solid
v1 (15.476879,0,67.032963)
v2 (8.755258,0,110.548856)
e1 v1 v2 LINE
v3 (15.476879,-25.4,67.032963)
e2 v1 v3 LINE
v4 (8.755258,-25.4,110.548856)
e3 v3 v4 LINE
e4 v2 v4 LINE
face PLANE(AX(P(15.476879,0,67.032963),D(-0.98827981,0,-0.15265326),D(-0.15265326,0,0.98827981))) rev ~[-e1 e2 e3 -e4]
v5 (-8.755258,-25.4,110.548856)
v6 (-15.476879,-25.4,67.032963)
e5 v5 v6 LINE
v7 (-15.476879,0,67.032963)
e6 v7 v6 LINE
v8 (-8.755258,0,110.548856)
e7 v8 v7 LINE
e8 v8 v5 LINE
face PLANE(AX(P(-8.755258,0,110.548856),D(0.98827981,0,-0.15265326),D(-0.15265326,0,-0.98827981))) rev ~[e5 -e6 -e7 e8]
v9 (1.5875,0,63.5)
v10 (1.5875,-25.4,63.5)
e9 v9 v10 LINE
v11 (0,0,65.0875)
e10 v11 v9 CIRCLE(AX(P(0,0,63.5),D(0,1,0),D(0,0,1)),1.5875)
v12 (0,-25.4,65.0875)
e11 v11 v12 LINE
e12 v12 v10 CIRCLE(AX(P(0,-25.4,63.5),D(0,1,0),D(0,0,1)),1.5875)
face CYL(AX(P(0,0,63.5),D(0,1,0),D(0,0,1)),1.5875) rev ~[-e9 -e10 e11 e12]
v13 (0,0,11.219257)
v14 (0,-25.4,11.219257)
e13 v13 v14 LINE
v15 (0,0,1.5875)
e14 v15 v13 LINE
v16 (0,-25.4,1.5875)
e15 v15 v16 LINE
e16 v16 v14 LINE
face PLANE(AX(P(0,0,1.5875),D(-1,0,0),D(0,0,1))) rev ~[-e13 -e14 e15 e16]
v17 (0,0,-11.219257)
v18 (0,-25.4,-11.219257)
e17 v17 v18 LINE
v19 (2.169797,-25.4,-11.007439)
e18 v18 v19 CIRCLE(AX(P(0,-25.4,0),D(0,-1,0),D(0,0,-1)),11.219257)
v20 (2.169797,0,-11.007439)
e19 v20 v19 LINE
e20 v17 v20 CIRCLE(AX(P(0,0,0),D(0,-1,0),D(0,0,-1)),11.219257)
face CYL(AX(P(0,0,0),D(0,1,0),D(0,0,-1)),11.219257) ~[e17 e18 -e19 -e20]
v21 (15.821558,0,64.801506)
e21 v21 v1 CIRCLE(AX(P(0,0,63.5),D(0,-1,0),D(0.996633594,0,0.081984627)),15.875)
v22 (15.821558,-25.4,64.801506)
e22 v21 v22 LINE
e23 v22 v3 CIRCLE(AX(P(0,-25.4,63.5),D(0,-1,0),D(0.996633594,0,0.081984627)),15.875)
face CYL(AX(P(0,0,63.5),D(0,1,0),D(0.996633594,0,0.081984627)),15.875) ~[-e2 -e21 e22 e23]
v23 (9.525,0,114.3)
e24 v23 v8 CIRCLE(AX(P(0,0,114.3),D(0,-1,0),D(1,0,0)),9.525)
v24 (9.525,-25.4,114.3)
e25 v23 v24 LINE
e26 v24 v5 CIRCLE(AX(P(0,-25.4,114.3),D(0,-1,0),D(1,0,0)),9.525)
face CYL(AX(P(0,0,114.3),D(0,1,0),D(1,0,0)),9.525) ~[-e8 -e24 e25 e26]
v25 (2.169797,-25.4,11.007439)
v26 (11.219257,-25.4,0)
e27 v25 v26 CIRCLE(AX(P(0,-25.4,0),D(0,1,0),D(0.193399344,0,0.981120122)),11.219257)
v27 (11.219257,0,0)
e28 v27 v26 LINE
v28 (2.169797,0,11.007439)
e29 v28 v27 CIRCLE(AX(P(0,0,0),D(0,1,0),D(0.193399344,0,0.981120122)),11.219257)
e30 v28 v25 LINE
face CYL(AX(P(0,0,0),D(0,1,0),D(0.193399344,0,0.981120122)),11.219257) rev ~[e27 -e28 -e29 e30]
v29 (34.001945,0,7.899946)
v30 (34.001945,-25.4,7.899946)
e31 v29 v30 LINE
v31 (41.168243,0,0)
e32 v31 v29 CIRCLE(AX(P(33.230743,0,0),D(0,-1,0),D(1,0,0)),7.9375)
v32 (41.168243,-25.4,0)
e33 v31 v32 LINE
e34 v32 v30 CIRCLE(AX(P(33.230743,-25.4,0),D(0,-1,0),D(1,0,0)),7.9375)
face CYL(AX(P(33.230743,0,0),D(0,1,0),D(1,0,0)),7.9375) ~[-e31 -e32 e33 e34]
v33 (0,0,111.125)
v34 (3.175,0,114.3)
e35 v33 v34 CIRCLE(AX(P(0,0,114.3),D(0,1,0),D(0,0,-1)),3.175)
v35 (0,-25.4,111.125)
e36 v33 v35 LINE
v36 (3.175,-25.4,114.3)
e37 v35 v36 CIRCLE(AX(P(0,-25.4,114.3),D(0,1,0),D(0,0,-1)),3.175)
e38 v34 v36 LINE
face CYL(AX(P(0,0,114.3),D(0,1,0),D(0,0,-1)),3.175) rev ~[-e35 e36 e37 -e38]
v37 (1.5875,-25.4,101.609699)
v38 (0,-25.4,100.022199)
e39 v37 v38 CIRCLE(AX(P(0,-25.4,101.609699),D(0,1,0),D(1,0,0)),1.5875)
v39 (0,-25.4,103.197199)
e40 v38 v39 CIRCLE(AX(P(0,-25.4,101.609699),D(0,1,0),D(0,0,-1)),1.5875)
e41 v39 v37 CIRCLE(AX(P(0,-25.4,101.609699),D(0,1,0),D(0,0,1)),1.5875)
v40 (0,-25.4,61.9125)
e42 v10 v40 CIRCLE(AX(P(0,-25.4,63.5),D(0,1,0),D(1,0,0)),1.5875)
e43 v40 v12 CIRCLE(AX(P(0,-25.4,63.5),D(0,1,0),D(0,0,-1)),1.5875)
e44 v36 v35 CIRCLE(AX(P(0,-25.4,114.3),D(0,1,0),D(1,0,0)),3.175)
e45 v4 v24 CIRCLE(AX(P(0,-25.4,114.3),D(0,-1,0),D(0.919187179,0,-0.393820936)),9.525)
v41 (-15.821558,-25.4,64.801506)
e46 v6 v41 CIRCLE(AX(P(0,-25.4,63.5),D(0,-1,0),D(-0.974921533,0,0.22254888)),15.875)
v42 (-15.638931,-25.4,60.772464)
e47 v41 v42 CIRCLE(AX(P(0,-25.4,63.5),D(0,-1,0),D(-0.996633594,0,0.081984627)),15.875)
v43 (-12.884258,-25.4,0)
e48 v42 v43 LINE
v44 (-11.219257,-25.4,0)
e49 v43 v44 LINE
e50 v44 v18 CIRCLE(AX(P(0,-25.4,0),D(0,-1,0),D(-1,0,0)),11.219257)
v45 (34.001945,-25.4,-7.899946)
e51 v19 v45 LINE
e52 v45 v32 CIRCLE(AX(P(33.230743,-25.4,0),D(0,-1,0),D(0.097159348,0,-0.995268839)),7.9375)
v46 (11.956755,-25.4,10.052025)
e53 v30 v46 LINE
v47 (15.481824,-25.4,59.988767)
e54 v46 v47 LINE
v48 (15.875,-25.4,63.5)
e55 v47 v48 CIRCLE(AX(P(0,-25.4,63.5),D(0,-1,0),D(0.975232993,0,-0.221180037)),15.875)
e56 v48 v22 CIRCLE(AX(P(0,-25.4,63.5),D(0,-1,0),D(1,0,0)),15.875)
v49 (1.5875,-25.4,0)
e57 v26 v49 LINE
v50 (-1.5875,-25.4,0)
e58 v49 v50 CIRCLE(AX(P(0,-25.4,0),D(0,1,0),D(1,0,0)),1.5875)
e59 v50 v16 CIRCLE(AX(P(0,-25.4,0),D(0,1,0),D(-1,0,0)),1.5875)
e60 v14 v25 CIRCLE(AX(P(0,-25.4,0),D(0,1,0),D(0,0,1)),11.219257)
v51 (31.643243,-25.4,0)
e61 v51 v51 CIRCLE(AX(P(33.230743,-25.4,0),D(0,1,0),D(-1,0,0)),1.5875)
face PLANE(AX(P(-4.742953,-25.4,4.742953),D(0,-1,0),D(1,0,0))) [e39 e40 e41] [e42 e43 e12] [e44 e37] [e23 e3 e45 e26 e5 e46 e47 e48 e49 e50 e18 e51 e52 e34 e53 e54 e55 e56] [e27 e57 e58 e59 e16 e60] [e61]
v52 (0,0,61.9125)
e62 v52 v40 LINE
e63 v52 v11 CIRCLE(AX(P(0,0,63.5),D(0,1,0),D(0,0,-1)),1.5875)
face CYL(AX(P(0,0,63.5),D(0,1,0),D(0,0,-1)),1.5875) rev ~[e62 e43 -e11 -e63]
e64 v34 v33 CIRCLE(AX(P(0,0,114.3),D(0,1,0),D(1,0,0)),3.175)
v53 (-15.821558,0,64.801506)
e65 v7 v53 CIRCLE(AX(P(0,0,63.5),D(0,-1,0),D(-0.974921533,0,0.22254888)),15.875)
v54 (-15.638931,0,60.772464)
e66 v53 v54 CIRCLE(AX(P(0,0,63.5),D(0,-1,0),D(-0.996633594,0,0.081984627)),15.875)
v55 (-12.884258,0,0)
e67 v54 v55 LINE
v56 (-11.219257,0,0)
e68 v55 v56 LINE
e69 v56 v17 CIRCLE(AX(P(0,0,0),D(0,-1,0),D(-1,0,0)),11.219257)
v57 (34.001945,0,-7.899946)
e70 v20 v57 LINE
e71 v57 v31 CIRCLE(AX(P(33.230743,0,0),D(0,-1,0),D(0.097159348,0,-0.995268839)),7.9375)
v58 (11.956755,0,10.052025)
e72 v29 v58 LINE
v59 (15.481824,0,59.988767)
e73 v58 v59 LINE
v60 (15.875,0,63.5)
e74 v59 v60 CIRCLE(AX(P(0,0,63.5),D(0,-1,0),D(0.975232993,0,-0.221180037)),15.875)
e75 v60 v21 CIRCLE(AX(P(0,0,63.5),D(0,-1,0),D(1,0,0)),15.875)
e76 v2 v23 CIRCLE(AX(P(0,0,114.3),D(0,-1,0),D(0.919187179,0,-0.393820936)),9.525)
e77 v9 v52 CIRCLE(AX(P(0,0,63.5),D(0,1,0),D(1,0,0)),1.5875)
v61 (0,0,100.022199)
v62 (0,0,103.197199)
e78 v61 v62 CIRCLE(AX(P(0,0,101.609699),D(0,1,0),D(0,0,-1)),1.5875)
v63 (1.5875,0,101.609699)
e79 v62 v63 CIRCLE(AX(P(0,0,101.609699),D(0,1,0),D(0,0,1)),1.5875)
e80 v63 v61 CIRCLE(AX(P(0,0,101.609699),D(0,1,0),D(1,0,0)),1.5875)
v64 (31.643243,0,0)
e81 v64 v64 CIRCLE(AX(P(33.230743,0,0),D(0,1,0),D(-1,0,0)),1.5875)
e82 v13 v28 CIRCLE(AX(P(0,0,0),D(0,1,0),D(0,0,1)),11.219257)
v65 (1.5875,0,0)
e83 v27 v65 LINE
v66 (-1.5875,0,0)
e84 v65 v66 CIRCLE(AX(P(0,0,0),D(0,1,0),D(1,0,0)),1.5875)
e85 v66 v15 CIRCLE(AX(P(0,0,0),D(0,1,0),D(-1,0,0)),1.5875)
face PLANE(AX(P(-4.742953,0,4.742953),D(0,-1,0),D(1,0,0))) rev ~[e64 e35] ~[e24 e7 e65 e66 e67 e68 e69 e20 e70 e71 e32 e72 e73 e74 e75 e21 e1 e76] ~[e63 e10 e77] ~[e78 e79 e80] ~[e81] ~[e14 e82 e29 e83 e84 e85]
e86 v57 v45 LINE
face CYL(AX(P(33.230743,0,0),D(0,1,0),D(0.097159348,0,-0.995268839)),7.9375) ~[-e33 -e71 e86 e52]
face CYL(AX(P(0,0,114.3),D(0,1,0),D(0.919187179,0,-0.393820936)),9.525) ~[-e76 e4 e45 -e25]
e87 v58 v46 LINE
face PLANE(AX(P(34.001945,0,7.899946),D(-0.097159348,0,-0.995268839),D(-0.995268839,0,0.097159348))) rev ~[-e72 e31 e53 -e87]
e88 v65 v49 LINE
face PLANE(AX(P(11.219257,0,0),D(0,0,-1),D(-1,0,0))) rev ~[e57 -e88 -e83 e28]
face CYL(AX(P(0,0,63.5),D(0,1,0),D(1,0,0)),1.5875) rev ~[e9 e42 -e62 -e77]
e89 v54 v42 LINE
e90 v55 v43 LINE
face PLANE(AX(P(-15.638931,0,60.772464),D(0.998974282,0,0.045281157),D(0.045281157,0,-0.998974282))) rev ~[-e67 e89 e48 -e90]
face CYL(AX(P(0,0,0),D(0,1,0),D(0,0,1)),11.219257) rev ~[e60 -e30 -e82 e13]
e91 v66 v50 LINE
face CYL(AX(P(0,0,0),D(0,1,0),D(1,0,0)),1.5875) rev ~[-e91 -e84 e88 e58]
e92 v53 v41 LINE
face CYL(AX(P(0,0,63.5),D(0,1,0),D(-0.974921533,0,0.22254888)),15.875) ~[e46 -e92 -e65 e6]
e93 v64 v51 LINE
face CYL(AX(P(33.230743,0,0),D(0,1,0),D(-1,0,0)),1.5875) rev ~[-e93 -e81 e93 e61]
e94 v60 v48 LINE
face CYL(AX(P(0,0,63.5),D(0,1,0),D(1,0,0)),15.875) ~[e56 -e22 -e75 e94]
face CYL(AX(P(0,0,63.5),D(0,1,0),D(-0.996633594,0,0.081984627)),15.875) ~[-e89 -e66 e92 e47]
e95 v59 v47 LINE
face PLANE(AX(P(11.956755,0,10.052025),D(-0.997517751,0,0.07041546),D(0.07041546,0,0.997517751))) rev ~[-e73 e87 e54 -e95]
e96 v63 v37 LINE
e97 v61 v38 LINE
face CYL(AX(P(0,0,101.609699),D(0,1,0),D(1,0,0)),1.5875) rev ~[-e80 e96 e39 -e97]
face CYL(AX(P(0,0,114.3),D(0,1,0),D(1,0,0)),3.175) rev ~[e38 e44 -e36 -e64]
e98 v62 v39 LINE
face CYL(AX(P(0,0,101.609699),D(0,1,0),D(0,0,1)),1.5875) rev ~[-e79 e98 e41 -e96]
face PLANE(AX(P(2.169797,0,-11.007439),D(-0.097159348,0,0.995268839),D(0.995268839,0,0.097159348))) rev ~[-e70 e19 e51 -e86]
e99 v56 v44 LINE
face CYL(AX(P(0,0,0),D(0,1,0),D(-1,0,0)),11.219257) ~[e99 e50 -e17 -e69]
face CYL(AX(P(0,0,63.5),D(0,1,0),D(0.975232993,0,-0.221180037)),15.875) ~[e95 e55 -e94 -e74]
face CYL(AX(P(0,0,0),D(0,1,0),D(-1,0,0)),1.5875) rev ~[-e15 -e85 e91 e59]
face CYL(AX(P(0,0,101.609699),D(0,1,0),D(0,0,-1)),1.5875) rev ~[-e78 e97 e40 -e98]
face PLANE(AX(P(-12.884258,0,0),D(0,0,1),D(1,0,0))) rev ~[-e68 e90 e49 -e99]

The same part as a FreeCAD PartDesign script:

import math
import FreeCAD as App
import Part
import Sketcher

V = App.Vector
Q = App.Units.Quantity

doc = App.newDocument("Part")
body = doc.addObject("PartDesign::Body", "Body")

sketch1 = body.newObject("Sketcher::SketchObject", "Sketch")
sketch1.AttachmentSupport = (doc.getObject("XZ_Plane"), [""])
sketch1.MapMode = "FlatFace"
sketch1.addGeometry(Part.LineSegment(V(2.2, -11, 0), V(34, -7.9, 0)), False)
sketch1.addGeometry(Part.ArcOfCircle(Part.Circle(V(33.2, 0, 0), V(0, 0, 1), 7.9), math.radians(-84), math.radians(0)), False)
sketch1.addGeometry(Part.ArcOfCircle(Part.Circle(V(33.2, 0, 0), V(0, 0, 1), 7.9), math.radians(0), math.radians(84)), False)
sketch1.addGeometry(Part.LineSegment(V(34, 7.9, 0), V(12, 10.1, 0)), False)
sketch1.addGeometry(Part.LineSegment(V(12, 10.1, 0), V(15.5, 60, 0)), False)
sketch1.addGeometry(Part.ArcOfCircle(Part.Circle(V(0, 63.5, 0), V(0, 0, 1), 15.9), math.radians(-12.78), math.radians(0)), False)
sketch1.addGeometry(Part.ArcOfCircle(Part.Circle(V(0, 63.5, 0), V(0, 0, 1), 15.9), math.radians(0), math.radians(4.7)), False)
sketch1.addGeometry(Part.ArcOfCircle(Part.Circle(V(0, 63.5, 0), V(0, 0, 1), 15.9), math.radians(4.7), math.radians(12.86)), False)
sketch1.addGeometry(Part.LineSegment(V(15.5, 67, 0), V(8.8, 110.5, 0)), False)
sketch1.addGeometry(Part.ArcOfCircle(Part.Circle(V(0, 114.3, 0), V(0, 0, 1), 9.5), math.radians(-23), math.radians(0)), False)
sketch1.addGeometry(Part.ArcOfCircle(Part.Circle(V(0, 114.3, 0), V(0, 0, 1), 9.5), math.radians(0), math.radians(203)), False)
sketch1.addGeometry(Part.LineSegment(V(-8.8, 110.5, 0), V(-15.5, 67, 0)), False)
sketch1.addGeometry(Part.ArcOfCircle(Part.Circle(V(0, 63.5, 0), V(0, 0, 1), 15.9), math.radians(167.14), math.radians(175.3)), False)
sketch1.addGeometry(Part.ArcOfCircle(Part.Circle(V(0, 63.5, 0), V(0, 0, 1), 15.9), math.radians(175.3), math.radians(189.89)), False)
sketch1.addGeometry(Part.LineSegment(V(-15.6, 60.8, 0), V(-12.9, 0, 0)), False)
sketch1.addGeometry(Part.LineSegment(V(-12.9, 0, 0), V(-11.2, 0, 0)), False)
sketch1.addGeometry(Part.ArcOfCircle(Part.Circle(V(0, 0, 0), V(0, 0, 1), 11.2), math.radians(180), math.radians(270)), False)
sketch1.addGeometry(Part.ArcOfCircle(Part.Circle(V(0, 0, 0), V(0, 0, 1), 11.2), math.radians(-90), math.radians(-78.85)), False)
sketch1.addGeometry(Part.ArcOfCircle(Part.Circle(V(0, 0, 0), V(0, 0, 1), 11.2), math.radians(0), math.radians(79)), False)
sketch1.addGeometry(Part.LineSegment(V(11.2, 0, 0), V(1.6, 0, 0)), False)
sketch1.addGeometry(Part.ArcOfCircle(Part.Circle(V(0, 0, 0), V(0, 0, 1), 1.6), math.radians(180), math.radians(360)), False)
sketch1.addGeometry(Part.ArcOfCircle(Part.Circle(V(0, 0, 0), V(0, 0, 1), 1.6), math.radians(90), math.radians(180)), False)
sketch1.addGeometry(Part.LineSegment(V(0, 1.6, 0), V(0, 11.2, 0)), False)
sketch1.addGeometry(Part.ArcOfCircle(Part.Circle(V(0, 0, 0), V(0, 0, 1), 11.2), math.radians(78.85), math.radians(90)), False)
sketch1.addGeometry(Part.Circle(V(33.2, 0, 0), V(0, 0, 1), 1.6), False)
sketch1.addGeometry(Part.ArcOfCircle(Part.Circle(V(0, 63.5, 0), V(0, 0, 1), 1.6), math.radians(90), math.radians(270)), False)
sketch1.addGeometry(Part.ArcOfCircle(Part.Circle(V(0, 63.5, 0), V(0, 0, 1), 1.6), math.radians(0), math.radians(90)), False)
sketch1.addGeometry(Part.ArcOfCircle(Part.Circle(V(0, 63.5, 0), V(0, 0, 1), 1.6), math.radians(-90), math.radians(0)), False)
sketch1.addGeometry(Part.ArcOfCircle(Part.Circle(V(0, 101.6, 0), V(0, 0, 1), 1.6), math.radians(90), math.radians(270)), False)
sketch1.addGeometry(Part.ArcOfCircle(Part.Circle(V(0, 101.6, 0), V(0, 0, 1), 1.6), math.radians(0), math.radians(90)), False)
sketch1.addGeometry(Part.ArcOfCircle(Part.Circle(V(0, 101.6, 0), V(0, 0, 1), 1.6), math.radians(-90), math.radians(0)), False)
sketch1.addGeometry(Part.ArcOfCircle(Part.Circle(V(0, 114.3, 0), V(0, 0, 1), 3.2), math.radians(0), math.radians(270)), False)
sketch1.addGeometry(Part.ArcOfCircle(Part.Circle(V(0, 114.3, 0), V(0, 0, 1), 3.2), math.radians(-90), math.radians(0)), False)
sketch1.addConstraint(Sketcher.Constraint("Tangent", 0, 2, 1, 1))
sketch1.addConstraint(Sketcher.Constraint("Tangent", 1, 2, 2, 1))
sketch1.addConstraint(Sketcher.Constraint("Tangent", 2, 2, 3, 1))
sketch1.addConstraint(Sketcher.Constraint("Coincident", 3, 2, 4, 1))
sketch1.addConstraint(Sketcher.Constraint("Coincident", 4, 2, 5, 1))
sketch1.addConstraint(Sketcher.Constraint("Tangent", 5, 2, 6, 1))
sketch1.addConstraint(Sketcher.Constraint("Tangent", 6, 2, 7, 1))
sketch1.addConstraint(Sketcher.Constraint("Coincident", 7, 2, 8, 1))
sketch1.addConstraint(Sketcher.Constraint("Coincident", 8, 2, 9, 1))
sketch1.addConstraint(Sketcher.Constraint("Tangent", 9, 2, 10, 1))
sketch1.addConstraint(Sketcher.Constraint("Coincident", 10, 2, 11, 1))
sketch1.addConstraint(Sketcher.Constraint("Coincident", 11, 2, 12, 1))
sketch1.addConstraint(Sketcher.Constraint("Tangent", 12, 2, 13, 1))
sketch1.addConstraint(Sketcher.Constraint("Coincident", 13, 2, 14, 1))
sketch1.addConstraint(Sketcher.Constraint("Coincident", 14, 2, 15, 1))
sketch1.addConstraint(Sketcher.Constraint("Coincident", 15, 2, 16, 1))
sketch1.addConstraint(Sketcher.Constraint("Tangent", 16, 2, 17, 1))
sketch1.addConstraint(Sketcher.Constraint("Coincident", 17, 2, 0, 1))
sketch1.addConstraint(Sketcher.Constraint("Coincident", 18, 1, 19, 1))
sketch1.addConstraint(Sketcher.Constraint("Coincident", 19, 2, 20, 2))
sketch1.addConstraint(Sketcher.Constraint("Tangent", 20, 1, 21, 2))
sketch1.addConstraint(Sketcher.Constraint("Coincident", 21, 1, 22, 1))
sketch1.addConstraint(Sketcher.Constraint("Coincident", 22, 2, 23, 2))
sketch1.addConstraint(Sketcher.Constraint("Tangent", 23, 1, 18, 2))
sketch1.addConstraint(Sketcher.Constraint("Tangent", 25, 1, 26, 2))
sketch1.addConstraint(Sketcher.Constraint("Tangent", 26, 1, 27, 2))
sketch1.addConstraint(Sketcher.Constraint("Tangent", 27, 1, 25, 2))
sketch1.addConstraint(Sketcher.Constraint("Tangent", 28, 1, 29, 2))
sketch1.addConstraint(Sketcher.Constraint("Tangent", 29, 1, 30, 2))
sketch1.addConstraint(Sketcher.Constraint("Tangent", 30, 1, 28, 2))
sketch1.addConstraint(Sketcher.Constraint("Tangent", 31, 1, 32, 2))
sketch1.addConstraint(Sketcher.Constraint("Coincident", 32, 1, 31, 2))
sketch1.addConstraint(Sketcher.Constraint("Horizontal", 15))
sketch1.addConstraint(Sketcher.Constraint("Horizontal", 19))
sketch1.addConstraint(Sketcher.Constraint("Vertical", 22))
sketch1.addConstraint(Sketcher.Constraint("Coincident", 16, 3, -1, 1))
sketch1.addConstraint(Sketcher.Constraint("Coincident", 18, 3, -1, 1))
sketch1.addConstraint(Sketcher.Constraint("Coincident", 20, 3, -1, 1))
sketch1.addConstraint(Sketcher.Constraint("Coincident", 7, 3, 5, 3))
sketch1.addConstraint(Sketcher.Constraint("Coincident", 12, 3, 5, 3))
sketch1.addConstraint(Sketcher.Constraint("Coincident", 24, 3, 1, 3))
sketch1.addConstraint(Sketcher.Constraint("Coincident", 25, 3, 5, 3))
sketch1.addConstraint(Sketcher.Constraint("Coincident", 31, 3, 9, 3))
sketch1.addConstraint(Sketcher.Constraint("Equal", 1, 2))
sketch1.addConstraint(Sketcher.Constraint("Equal", 9, 10))
sketch1.addConstraint(Sketcher.Constraint("Equal", 7, 12))
sketch1.addConstraint(Sketcher.Constraint("Equal", 12, 13))
sketch1.addConstraint(Sketcher.Constraint("Equal", 16, 17))
sketch1.addConstraint(Sketcher.Constraint("Equal", 17, 18))
sketch1.addConstraint(Sketcher.Constraint("Equal", 20, 21))
sketch1.addConstraint(Sketcher.Constraint("Equal", 18, 23))
sketch1.addConstraint(Sketcher.Constraint("Equal", 21, 24))
sketch1.addConstraint(Sketcher.Constraint("Equal", 24, 25))
sketch1.addConstraint(Sketcher.Constraint("Equal", 27, 28))
sketch1.addConstraint(Sketcher.Constraint("Symmetric", 8, 2, 10, 2, -2))
sketch1.addConstraint(Sketcher.Constraint("Symmetric", 7, 2, 11, 2, -2))
sketch1.addConstraint(Sketcher.Constraint("Symmetric", 0, 2, 2, 2, -1))
sketch1.addConstraint(Sketcher.Constraint("PointOnObject", 28, 3, -2))
sketch1.addConstraint(Sketcher.Constraint("PointOnObject", 1, 2, -1))
sketch1.addConstraint(Sketcher.Constraint("PointOnObject", 14, 2, -1))
sketch1.addConstraint(Sketcher.Constraint("PointOnObject", 16, 2, -2))
sketch1.addConstraint(Sketcher.Constraint("PointOnObject", 18, 1, -1))
sketch1.addConstraint(Sketcher.Constraint("PointOnObject", 20, 1, -1))
sketch1.addConstraint(Sketcher.Constraint("PointOnObject", 21, 1, -2))
sketch1.addConstraint(Sketcher.Constraint("PointOnObject", 25, 1, -2))
sketch1.addConstraint(Sketcher.Constraint("PointOnObject", 27, 1, -2))
sketch1.addConstraint(Sketcher.Constraint("PointOnObject", 28, 1, -2))
sketch1.addConstraint(Sketcher.Constraint("PointOnObject", 30, 1, -2))
sketch1.addConstraint(Sketcher.Constraint("PointOnObject", 32, 1, -2))
sketch1.addConstraint(Sketcher.Constraint("Horizontal", 27, 3, 5, 2))
sketch1.addConstraint(Sketcher.Constraint("Horizontal", 32, 3, 9, 2))
sketch1.addConstraint(Sketcher.Constraint("Horizontal", 6, 2, 12, 2))
sketch1.addConstraint(Sketcher.Constraint("Horizontal", 5, 2, 26, 1))
sketch1.addConstraint(Sketcher.Constraint("Horizontal", 30, 3, 29, 1))
sketch1.addConstraint(Sketcher.Constraint("Horizontal", 9, 2, 31, 1))
sketch1.addConstraint(Sketcher.Constraint("Vertical", 17, 2, 23, 1))
sketch1.addConstraint(Sketcher.Constraint("Diameter", 24, Q("0.125 in")))
sketch1.addConstraint(Sketcher.Constraint("Radius", 1, Q("0.3125 in")))
sketch1.addConstraint(Sketcher.Constraint("Radius", 5, Q("0.625 in")))
sketch1.addConstraint(Sketcher.Constraint("Radius", 9, Q("0.375 in")))
sketch1.addConstraint(Sketcher.Constraint("Radius", 31, Q("0.125 in")))
sketch1.addConstraint(Sketcher.Constraint("DistanceY", 6, 3, 9, 3, Q("2 in")))
sketch1.addConstraint(Sketcher.Constraint("DistanceY", -1, 1, 5, 3, Q("2.5 in")))
sketch1.addConstraint(Sketcher.Constraint("DistanceX", 15, 1, 15, 2, 1.665001))
sketch1.addConstraint(Sketcher.Constraint("Radius", 16, 11.219257))
sketch1.addConstraint(Sketcher.Constraint("DistanceY", -1, 1, 28, 3, 101.609699))
sketch1.addConstraint(Sketcher.Constraint("DistanceY", 13, 2, 11, 2, 6.2605))
sketch1.addConstraint(Sketcher.Constraint("DistanceX", -1, 1, 6, 2, 15.821558))
sketch1.addConstraint(Sketcher.Constraint("DistanceX", -1, 1, 7, 2, 15.476879))
sketch1.addConstraint(Sketcher.Constraint("DistanceY", 17, 2, -1, 1, 11.007439))
sketch1.addConstraint(Sketcher.Constraint("DistanceY", 4, 2, 6, 2, 4.812739))
sketch1.addConstraint(Sketcher.Constraint("Distance", 0, 31.983467))
sketch1.addConstraint(Sketcher.Constraint("Distance", 3, 22.149985))
sketch1.addConstraint(Sketcher.Constraint("Distance", 8, 44.031955))
pad1 = body.newObject("PartDesign::Pad", "Pad")
pad1.Profile = sketch1
pad1.Length = Q("1 in")

doc.recompute()
